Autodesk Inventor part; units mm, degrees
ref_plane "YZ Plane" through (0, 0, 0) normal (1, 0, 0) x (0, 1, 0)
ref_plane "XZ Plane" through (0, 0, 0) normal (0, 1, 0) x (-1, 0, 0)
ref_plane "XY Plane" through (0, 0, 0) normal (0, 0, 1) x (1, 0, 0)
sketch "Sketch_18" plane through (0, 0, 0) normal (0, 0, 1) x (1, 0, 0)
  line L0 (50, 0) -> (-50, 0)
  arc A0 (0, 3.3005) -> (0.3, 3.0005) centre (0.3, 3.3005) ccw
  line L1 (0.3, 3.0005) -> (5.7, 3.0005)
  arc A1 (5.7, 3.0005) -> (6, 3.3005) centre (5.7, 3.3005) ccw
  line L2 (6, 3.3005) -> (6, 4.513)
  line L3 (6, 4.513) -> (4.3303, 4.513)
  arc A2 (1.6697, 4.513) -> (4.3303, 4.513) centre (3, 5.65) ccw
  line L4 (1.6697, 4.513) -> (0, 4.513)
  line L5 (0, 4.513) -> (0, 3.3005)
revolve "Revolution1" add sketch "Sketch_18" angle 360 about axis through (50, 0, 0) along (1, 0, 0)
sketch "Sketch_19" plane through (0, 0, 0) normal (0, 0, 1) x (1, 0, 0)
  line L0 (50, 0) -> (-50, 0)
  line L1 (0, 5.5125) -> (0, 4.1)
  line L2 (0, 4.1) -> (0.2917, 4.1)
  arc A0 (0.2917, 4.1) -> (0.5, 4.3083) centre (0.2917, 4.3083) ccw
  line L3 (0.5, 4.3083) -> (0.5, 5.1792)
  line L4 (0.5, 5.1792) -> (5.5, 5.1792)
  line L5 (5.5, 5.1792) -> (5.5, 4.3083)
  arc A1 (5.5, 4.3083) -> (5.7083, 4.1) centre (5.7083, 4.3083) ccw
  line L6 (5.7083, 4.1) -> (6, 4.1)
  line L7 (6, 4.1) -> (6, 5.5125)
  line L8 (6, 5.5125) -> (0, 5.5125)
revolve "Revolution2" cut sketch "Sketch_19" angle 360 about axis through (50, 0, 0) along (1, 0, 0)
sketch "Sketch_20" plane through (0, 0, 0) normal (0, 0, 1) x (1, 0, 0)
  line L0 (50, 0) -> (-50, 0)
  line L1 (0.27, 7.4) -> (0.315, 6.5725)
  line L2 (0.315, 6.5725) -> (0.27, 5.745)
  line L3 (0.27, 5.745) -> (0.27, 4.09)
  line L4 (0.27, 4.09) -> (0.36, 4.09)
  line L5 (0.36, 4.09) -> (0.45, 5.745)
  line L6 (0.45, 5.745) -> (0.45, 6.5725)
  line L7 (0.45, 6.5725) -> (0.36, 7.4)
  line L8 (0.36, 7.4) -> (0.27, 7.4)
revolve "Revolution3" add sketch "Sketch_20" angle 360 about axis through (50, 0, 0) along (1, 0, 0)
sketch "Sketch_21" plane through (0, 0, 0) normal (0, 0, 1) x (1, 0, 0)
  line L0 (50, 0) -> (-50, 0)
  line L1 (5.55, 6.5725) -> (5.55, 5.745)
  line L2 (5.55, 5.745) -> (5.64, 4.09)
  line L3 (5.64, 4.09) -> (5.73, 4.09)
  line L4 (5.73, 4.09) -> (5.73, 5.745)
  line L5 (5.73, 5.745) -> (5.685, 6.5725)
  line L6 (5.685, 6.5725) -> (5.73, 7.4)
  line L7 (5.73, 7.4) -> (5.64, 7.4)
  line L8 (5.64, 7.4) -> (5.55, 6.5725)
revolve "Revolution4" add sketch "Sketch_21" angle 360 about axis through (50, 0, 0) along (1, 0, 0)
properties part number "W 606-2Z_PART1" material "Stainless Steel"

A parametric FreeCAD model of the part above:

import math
import FreeCAD as App
import Part
import Sketcher

doc = App.newDocument("Part")
body = doc.addObject("PartDesign::Body", "Body")

# Sketch on XY plane
sketch1 = doc.addObject("Sketcher::SketchObject", "Sketch")
body.addObject(sketch1)
sketch1.AttachmentSupport = (doc.XY_Plane, [""])
sketch1.MapMode = "FlatFace"
sketch1.addGeometry(Part.LineSegment(App.Vector(0, 4.51, 0), App.Vector(0, 3.3, 0)), False)
sketch1.addGeometry(Part.ArcOfCircle(Part.Circle(App.Vector(0.3, 3.3, 0), App.Vector(0, 0, 1), 0.3), math.radians(180), math.radians(270)), False)
sketch1.addGeometry(Part.LineSegment(App.Vector(0.3, 3, 0), App.Vector(5.7, 3, 0)), False)
sketch1.addGeometry(Part.ArcOfCircle(Part.Circle(App.Vector(5.7, 3.3, 0), App.Vector(0, 0, 1), 0.3), math.radians(-90), math.radians(0)), False)
sketch1.addGeometry(Part.LineSegment(App.Vector(6, 3.3, 0), App.Vector(6, 4.51, 0)), False)
sketch1.addGeometry(Part.LineSegment(App.Vector(6, 4.51, 0), App.Vector(4.33, 4.51, 0)), False)
sketch1.addGeometry(Part.ArcOfCircle(Part.Circle(App.Vector(3, 5.65, 0), App.Vector(0, 0, 1), 1.75), math.radians(-139), math.radians(-41)), False)
sketch1.addGeometry(Part.LineSegment(App.Vector(1.67, 4.51, 0), App.Vector(0, 4.51, 0)), False)
sketch1.addConstraint(Sketcher.Constraint("Tangent", 0, 2, 1, 1))
sketch1.addConstraint(Sketcher.Constraint("Tangent", 1, 2, 2, 1))
sketch1.addConstraint(Sketcher.Constraint("Tangent", 2, 2, 3, 1))
sketch1.addConstraint(Sketcher.Constraint("Tangent", 3, 2, 4, 1))
sketch1.addConstraint(Sketcher.Constraint("Coincident", 4, 2, 5, 1))
sketch1.addConstraint(Sketcher.Constraint("Coincident", 5, 2, 6, 2))
sketch1.addConstraint(Sketcher.Constraint("Coincident", 6, 1, 7, 1))
sketch1.addConstraint(Sketcher.Constraint("Coincident", 7, 2, 0, 1))
sketch1.addConstraint(Sketcher.Constraint("Vertical", 0))
sketch1.addConstraint(Sketcher.Constraint("Horizontal", 2))
sketch1.addConstraint(Sketcher.Constraint("Vertical", 4))
sketch1.addConstraint(Sketcher.Constraint("Horizontal", 5))
sketch1.addConstraint(Sketcher.Constraint("Horizontal", 7))
sketch1.addConstraint(Sketcher.Constraint("Equal", 1, 3))
sketch1.addConstraint(Sketcher.Constraint("PointOnObject", 0, 2, -2))
sketch1.addConstraint(Sketcher.Constraint("Horizontal", 5, 2, 6, 1))
sketch1.addConstraint(Sketcher.Constraint("Equal", 5, 7))
sketch1.addConstraint(Sketcher.Constraint("Radius", 1, 0.3))
sketch1.addConstraint(Sketcher.Constraint("Radius", 6, 1.75))
sketch1.addConstraint(Sketcher.Constraint("DistanceX", 2, 1, 2, 2, 5.4))
sketch1.addConstraint(Sketcher.Constraint("DistanceY", -1, 1, 6, 3, 5.65))
sketch1.addConstraint(Sketcher.Constraint("DistanceX", 5, 2, 5, 1, 1.6697))
sketch1.addConstraint(Sketcher.Constraint("DistanceY", 0, 2, 0, 1, 1.2125))
revolution = doc.addObject("PartDesign::Revolution", "Revolution")
body.addObject(revolution)
revolution.Profile = sketch1
revolution.ReferenceAxis = (sketch1, ["H_Axis"])
revolution.Angle = 360

# Sketch on XY plane
sketch2 = doc.addObject("Sketcher::SketchObject", "Sketch001")
body.addObject(sketch2)
sketch2.AttachmentSupport = (doc.XY_Plane, [""])
sketch2.MapMode = "FlatFace"
sketch2.addGeometry(Part.LineSegment(App.Vector(6, 5.51, 0), App.Vector(0, 5.51, 0)), False)
sketch2.addGeometry(Part.LineSegment(App.Vector(0, 5.51, 0), App.Vector(0, 4.1, 0)), False)
sketch2.addGeometry(Part.LineSegment(App.Vector(0, 4.1, 0), App.Vector(0.29, 4.1, 0)), False)
sketch2.addGeometry(Part.ArcOfCircle(Part.Circle(App.Vector(0.29, 4.31, 0), App.Vector(0, 0, 1), 0.21), math.radians(-90), math.radians(0)), False)
sketch2.addGeometry(Part.LineSegment(App.Vector(0.5, 4.31, 0), App.Vector(0.5, 5.18, 0)), False)
sketch2.addGeometry(Part.LineSegment(App.Vector(0.5, 5.18, 0), App.Vector(5.5, 5.18, 0)), False)
sketch2.addGeometry(Part.LineSegment(App.Vector(5.5, 5.18, 0), App.Vector(5.5, 4.31, 0)), False)
sketch2.addGeometry(Part.ArcOfCircle(Part.Circle(App.Vector(5.71, 4.31, 0), App.Vector(0, 0, 1), 0.21), math.radians(180), math.radians(270)), False)
sketch2.addGeometry(Part.LineSegment(App.Vector(5.71, 4.1, 0), App.Vector(6, 4.1, 0)), False)
sketch2.addGeometry(Part.LineSegment(App.Vector(6, 4.1, 0), App.Vector(6, 5.51, 0)), False)
sketch2.addConstraint(Sketcher.Constraint("Coincident", 0, 2, 1, 1))
sketch2.addConstraint(Sketcher.Constraint("Coincident", 1, 2, 2, 1))
sketch2.addConstraint(Sketcher.Constraint("Tangent", 2, 2, 3, 1))
sketch2.addConstraint(Sketcher.Constraint("Tangent", 3, 2, 4, 1))
sketch2.addConstraint(Sketcher.Constraint("Coincident", 4, 2, 5, 1))
sketch2.addConstraint(Sketcher.Constraint("Coincident", 5, 2, 6, 1))
sketch2.addConstraint(Sketcher.Constraint("Tangent", 6, 2, 7, 1))
sketch2.addConstraint(Sketcher.Constraint("Tangent", 7, 2, 8, 1))
sketch2.addConstraint(Sketcher.Constraint("Coincident", 8, 2, 9, 1))
sketch2.addConstraint(Sketcher.Constraint("Coincident", 9, 2, 0, 1))
sketch2.addConstraint(Sketcher.Constraint("Horizontal", 0))
sketch2.addConstraint(Sketcher.Constraint("Vertical", 1))
sketch2.addConstraint(Sketcher.Constraint("Horizontal", 2))
sketch2.addConstraint(Sketcher.Constraint("Vertical", 4))
sketch2.addConstraint(Sketcher.Constraint("Horizontal", 5))
sketch2.addConstraint(Sketcher.Constraint("Vertical", 6))
sketch2.addConstraint(Sketcher.Constraint("Horizontal", 8))
sketch2.addConstraint(Sketcher.Constraint("Vertical", 9))
sketch2.addConstraint(Sketcher.Constraint("Equal", 3, 7))
sketch2.addConstraint(Sketcher.Constraint("PointOnObject", 0, 2, -2))
sketch2.addConstraint(Sketcher.Constraint("Horizontal", 3, 3, 7, 3))
sketch2.addConstraint(Sketcher.Constraint("Equal", 2, 8))
sketch2.addConstraint(Sketcher.Constraint("DistanceX", 0, 2, 0, 1, 6.0))
sketch2.addConstraint(Sketcher.Constraint("DistanceX", 5, 1, 5, 2, 5.0))
sketch2.addConstraint(Sketcher.Constraint("DistanceY", -1, 1, 1, 2, 4.1))
sketch2.addConstraint(Sketcher.Constraint("Radius", 3, 0.2083))
sketch2.addConstraint(Sketcher.Constraint("DistanceY", 4, 1, 4, 2, 0.871))
sketch2.addConstraint(Sketcher.Constraint("DistanceY", 1, 2, 1, 1, 1.4125))
groove = doc.addObject("PartDesign::Groove", "Groove")
body.addObject(groove)
groove.Profile = sketch2
groove.ReferenceAxis = (sketch2, ["H_Axis"])
groove.Angle = 360

# Sketch on XY plane
sketch3 = doc.addObject("Sketcher::SketchObject", "Sketch002")
body.addObject(sketch3)
sketch3.AttachmentSupport = (doc.XY_Plane, [""])
sketch3.MapMode = "FlatFace"
sketch3.addGeometry(Part.LineSegment(App.Vector(0.36, 7.4, 0), App.Vector(0.27, 7.4, 0)), False)
sketch3.addGeometry(Part.LineSegment(App.Vector(0.27, 7.4, 0), App.Vector(0.32, 6.57, 0)), False)
sketch3.addGeometry(Part.LineSegment(App.Vector(0.32, 6.57, 0), App.Vector(0.27, 5.75, 0)), False)
sketch3.addGeometry(Part.LineSegment(App.Vector(0.27, 5.75, 0), App.Vector(0.27, 4.09, 0)), False)
sketch3.addGeometry(Part.LineSegment(App.Vector(0.27, 4.09, 0), App.Vector(0.36, 4.09, 0)), False)
sketch3.addGeometry(Part.LineSegment(App.Vector(0.36, 4.09, 0), App.Vector(0.45, 5.75, 0)), False)
sketch3.addGeometry(Part.LineSegment(App.Vector(0.45, 5.75, 0), App.Vector(0.45, 6.57, 0)), False)
sketch3.addGeometry(Part.LineSegment(App.Vector(0.45, 6.57, 0), App.Vector(0.36, 7.4, 0)), False)
sketch3.addConstraint(Sketcher.Constraint("Coincident", 0, 2, 1, 1))
sketch3.addConstraint(Sketcher.Constraint("Coincident", 1, 2, 2, 1))
sketch3.addConstraint(Sketcher.Constraint("Coincident", 2, 2, 3, 1))
sketch3.addConstraint(Sketcher.Constraint("Coincident", 3, 2, 4, 1))
sketch3.addConstraint(Sketcher.Constraint("Coincident", 4, 2, 5, 1))
sketch3.addConstraint(Sketcher.Constraint("Coincident", 5, 2, 6, 1))
sketch3.addConstraint(Sketcher.Constraint("Coincident", 6, 2, 7, 1))
sketch3.addConstraint(Sketcher.Constraint("Coincident", 7, 2, 0, 1))
sketch3.addConstraint(Sketcher.Constraint("Horizontal", 0))
sketch3.addConstraint(Sketcher.Constraint("Vertical", 3))
sketch3.addConstraint(Sketcher.Constraint("Horizontal", 4))
sketch3.addConstraint(Sketcher.Constraint("Vertical", 6))
sketch3.addConstraint(Sketcher.Constraint("Parallel", 2, 5))
sketch3.addConstraint(Sketcher.Constraint("Horizontal", 2, 2, 5, 2))
sketch3.addConstraint(Sketcher.Constraint("Horizontal", 1, 2, 6, 2))
sketch3.addConstraint(Sketcher.Constraint("Vertical", 0, 2, 2, 2))
sketch3.addConstraint(Sketcher.Constraint("Vertical", 4, 2, 7, 2))
sketch3.addConstraint(Sketcher.Constraint("Equal", 1, 2))
sketch3.addConstraint(Sketcher.Constraint("DistanceX", 0, 2, 0, 1, 0.09))
sketch3.addConstraint(Sketcher.Constraint("DistanceY", -1, 1, 0, 2, 7.4))
sketch3.addConstraint(Sketcher.Constraint("DistanceY", 3, 2, 3, 1, 1.655))
sketch3.addConstraint(Sketcher.Constraint("DistanceX", -1, 1, 0, 2, 0.27))
sketch3.addConstraint(Sketcher.Constraint("DistanceY", -1, 1, 3, 2, 4.09))
sketch3.addConstraint(Sketcher.Constraint("DistanceX", -1, 1, 5, 2, 0.45))
revolution2 = doc.addObject("PartDesign::Revolution", "Revolution001")
body.addObject(revolution2)
revolution2.Profile = sketch3
revolution2.ReferenceAxis = (sketch3, ["H_Axis"])
revolution2.Angle = 360

# Sketch on XY plane
sketch4 = doc.addObject("Sketcher::SketchObject", "Sketch003")
body.addObject(sketch4)
sketch4.AttachmentSupport = (doc.XY_Plane, [""])
sketch4.MapMode = "FlatFace"
sketch4.addGeometry(Part.LineSegment(App.Vector(5.64, 7.4, 0), App.Vector(5.55, 6.57, 0)), False)
sketch4.addGeometry(Part.LineSegment(App.Vector(5.55, 6.57, 0), App.Vector(5.55, 5.75, 0)), False)
sketch4.addGeometry(Part.LineSegment(App.Vector(5.55, 5.75, 0), App.Vector(5.64, 4.09, 0)), False)
sketch4.addGeometry(Part.LineSegment(App.Vector(5.64, 4.09, 0), App.Vector(5.73, 4.09, 0)), False)
sketch4.addGeometry(Part.LineSegment(App.Vector(5.73, 4.09, 0), App.Vector(5.73, 5.75, 0)), False)
sketch4.addGeometry(Part.LineSegment(App.Vector(5.73, 5.75, 0), App.Vector(5.68, 6.57, 0)), False)
sketch4.addGeometry(Part.LineSegment(App.Vector(5.68, 6.57, 0), App.Vector(5.73, 7.4, 0)), False)
sketch4.addGeometry(Part.LineSegment(App.Vector(5.73, 7.4, 0), App.Vector(5.64, 7.4, 0)), False)
sketch4.addConstraint(Sketcher.Constraint("Coincident", 0, 2, 1, 1))
sketch4.addConstraint(Sketcher.Constraint("Coincident", 1, 2, 2, 1))
sketch4.addConstraint(Sketcher.Constraint("Coincident", 2, 2, 3, 1))
sketch4.addConstraint(Sketcher.Constraint("Coincident", 3, 2, 4, 1))
sketch4.addConstraint(Sketcher.Constraint("Coincident", 4, 2, 5, 1))
sketch4.addConstraint(Sketcher.Constraint("Coincident", 5, 2, 6, 1))
sketch4.addConstraint(Sketcher.Constraint("Coincident", 6, 2, 7, 1))
sketch4.addConstraint(Sketcher.Constraint("Coincident", 7, 2, 0, 1))
sketch4.addConstraint(Sketcher.Constraint("Vertical", 1))
sketch4.addConstraint(Sketcher.Constraint("Horizontal", 3))
sketch4.addConstraint(Sketcher.Constraint("Vertical", 4))
sketch4.addConstraint(Sketcher.Constraint("Horizontal", 7))
sketch4.addConstraint(Sketcher.Constraint("Parallel", 2, 5))
sketch4.addConstraint(Sketcher.Constraint("Horizontal", 1, 2, 4, 2))
sketch4.addConstraint(Sketcher.Constraint("Horizontal", 0, 2, 5, 2))
sketch4.addConstraint(Sketcher.Constraint("Vertical", 4, 2, 6, 2))
sketch4.addConstraint(Sketcher.Constraint("Vertical", 2, 2, 7, 2))
sketch4.addConstraint(Sketcher.Constraint("Equal", 5, 6))
sketch4.addConstraint(Sketcher.Constraint("DistanceX", 3, 1, 3, 2, 0.09))
sketch4.addConstraint(Sketcher.Constraint("DistanceY", -1, 1, 6, 2, 7.4))
sketch4.addConstraint(Sketcher.Constraint("DistanceY", 4, 1, 4, 2, 1.655))
sketch4.addConstraint(Sketcher.Constraint("DistanceX", -1, 1, 0, 2, 5.55))
sketch4.addConstraint(Sketcher.Constraint("DistanceX", -1, 1, 2, 2, 5.64))
sketch4.addConstraint(Sketcher.Constraint("DistanceY", -1, 1, 2, 2, 4.09))
revolution3 = doc.addObject("PartDesign::Revolution", "Revolution002")
body.addObject(revolution3)
revolution3.Profile = sketch4
revolution3.ReferenceAxis = (sketch4, ["H_Axis"])
revolution3.Angle = 360

doc.recompute()
